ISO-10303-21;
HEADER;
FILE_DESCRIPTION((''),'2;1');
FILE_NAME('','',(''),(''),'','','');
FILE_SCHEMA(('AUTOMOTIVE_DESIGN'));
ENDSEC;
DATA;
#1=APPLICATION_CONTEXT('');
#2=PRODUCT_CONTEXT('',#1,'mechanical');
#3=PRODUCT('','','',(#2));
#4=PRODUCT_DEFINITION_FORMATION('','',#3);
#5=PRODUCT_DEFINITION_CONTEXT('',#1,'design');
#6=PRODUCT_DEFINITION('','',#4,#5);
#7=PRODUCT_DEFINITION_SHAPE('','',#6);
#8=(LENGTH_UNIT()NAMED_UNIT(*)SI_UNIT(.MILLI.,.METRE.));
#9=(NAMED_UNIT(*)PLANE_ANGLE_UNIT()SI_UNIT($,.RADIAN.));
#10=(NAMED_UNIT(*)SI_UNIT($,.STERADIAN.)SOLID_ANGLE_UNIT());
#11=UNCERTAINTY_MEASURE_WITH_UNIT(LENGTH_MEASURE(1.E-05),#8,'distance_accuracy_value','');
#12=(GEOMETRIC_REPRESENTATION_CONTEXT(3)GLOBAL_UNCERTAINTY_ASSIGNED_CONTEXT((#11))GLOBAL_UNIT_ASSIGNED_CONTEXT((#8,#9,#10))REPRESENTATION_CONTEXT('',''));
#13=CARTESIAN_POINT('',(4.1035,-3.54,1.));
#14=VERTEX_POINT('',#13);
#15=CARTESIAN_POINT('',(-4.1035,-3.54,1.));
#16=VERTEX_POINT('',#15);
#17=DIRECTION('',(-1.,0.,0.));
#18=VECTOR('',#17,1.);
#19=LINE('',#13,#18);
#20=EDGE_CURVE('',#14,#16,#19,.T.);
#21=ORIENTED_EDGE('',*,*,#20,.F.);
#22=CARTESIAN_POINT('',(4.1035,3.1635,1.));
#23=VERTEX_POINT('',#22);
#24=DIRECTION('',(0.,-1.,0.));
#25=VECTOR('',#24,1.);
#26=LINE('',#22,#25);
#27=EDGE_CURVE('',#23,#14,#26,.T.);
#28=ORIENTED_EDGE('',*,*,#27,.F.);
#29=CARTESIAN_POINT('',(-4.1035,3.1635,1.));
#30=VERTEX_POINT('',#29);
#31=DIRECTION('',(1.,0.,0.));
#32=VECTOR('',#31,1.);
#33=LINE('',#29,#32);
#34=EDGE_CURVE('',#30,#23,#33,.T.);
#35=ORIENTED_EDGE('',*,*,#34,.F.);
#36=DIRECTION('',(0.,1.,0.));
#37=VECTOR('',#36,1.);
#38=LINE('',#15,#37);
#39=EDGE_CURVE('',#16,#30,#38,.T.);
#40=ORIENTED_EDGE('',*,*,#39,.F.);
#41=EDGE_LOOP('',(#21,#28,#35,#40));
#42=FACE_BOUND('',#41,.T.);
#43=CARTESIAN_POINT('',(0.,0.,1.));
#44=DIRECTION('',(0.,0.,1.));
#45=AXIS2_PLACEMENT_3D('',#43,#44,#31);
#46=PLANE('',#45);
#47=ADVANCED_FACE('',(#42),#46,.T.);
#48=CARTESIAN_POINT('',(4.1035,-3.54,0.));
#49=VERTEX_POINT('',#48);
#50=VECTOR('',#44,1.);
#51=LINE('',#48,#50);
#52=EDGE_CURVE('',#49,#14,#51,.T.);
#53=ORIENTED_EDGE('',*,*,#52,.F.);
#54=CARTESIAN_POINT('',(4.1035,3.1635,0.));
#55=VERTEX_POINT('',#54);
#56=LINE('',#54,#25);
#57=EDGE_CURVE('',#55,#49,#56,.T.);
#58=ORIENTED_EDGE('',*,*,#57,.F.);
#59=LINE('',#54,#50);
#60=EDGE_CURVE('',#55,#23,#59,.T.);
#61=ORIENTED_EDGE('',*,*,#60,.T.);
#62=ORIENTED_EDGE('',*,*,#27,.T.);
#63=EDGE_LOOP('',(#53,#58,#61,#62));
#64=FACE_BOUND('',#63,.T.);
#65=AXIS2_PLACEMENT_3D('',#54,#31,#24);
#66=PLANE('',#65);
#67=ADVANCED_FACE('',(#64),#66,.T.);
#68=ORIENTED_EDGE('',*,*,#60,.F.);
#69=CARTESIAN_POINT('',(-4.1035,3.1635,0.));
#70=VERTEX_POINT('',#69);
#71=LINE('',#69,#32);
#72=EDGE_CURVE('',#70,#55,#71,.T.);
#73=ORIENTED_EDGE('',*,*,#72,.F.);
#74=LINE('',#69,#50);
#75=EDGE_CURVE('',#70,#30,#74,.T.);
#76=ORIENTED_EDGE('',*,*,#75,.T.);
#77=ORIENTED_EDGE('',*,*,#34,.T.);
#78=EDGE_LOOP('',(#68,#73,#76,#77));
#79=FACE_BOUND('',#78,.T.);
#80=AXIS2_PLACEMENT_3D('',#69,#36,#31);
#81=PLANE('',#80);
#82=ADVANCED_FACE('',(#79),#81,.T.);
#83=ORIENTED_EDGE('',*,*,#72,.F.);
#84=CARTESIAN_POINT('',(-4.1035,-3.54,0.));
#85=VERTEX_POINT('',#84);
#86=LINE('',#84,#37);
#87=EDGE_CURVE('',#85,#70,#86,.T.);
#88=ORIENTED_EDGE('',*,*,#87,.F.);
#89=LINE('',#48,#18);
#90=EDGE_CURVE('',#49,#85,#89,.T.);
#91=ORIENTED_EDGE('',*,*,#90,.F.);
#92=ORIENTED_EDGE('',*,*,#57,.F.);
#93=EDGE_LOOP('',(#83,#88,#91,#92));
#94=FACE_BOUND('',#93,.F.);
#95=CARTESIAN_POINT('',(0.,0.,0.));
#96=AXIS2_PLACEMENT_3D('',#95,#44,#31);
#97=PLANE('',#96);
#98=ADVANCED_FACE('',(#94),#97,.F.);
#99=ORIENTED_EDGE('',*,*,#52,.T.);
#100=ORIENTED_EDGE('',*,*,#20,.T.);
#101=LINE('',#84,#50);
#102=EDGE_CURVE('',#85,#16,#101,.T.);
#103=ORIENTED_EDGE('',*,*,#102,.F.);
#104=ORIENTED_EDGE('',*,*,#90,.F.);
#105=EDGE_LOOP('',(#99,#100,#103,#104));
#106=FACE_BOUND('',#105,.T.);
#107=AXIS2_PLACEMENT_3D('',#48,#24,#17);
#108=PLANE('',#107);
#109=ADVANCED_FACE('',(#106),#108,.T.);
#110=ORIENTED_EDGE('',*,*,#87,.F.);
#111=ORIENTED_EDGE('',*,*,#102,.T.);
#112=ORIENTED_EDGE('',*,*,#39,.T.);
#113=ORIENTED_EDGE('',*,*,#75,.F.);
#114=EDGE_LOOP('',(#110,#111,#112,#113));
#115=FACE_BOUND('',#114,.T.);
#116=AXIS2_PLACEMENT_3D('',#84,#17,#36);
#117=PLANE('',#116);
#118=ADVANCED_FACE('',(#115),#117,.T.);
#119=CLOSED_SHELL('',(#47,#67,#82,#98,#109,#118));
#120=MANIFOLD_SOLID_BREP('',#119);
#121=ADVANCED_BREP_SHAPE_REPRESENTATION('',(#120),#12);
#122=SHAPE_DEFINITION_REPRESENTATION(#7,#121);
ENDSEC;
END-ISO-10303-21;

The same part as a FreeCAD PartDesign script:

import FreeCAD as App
import Part
import Sketcher
from FreeCAD import Vector
Q = App.Units.Quantity

doc = App.newDocument("Part")
body = doc.addObject("PartDesign::Body", "Body")

sketch1 = body.newObject("Sketcher::SketchObject", "Sketch")
sketch1.AttachmentSupport = (doc.getObject("XY_Plane"), [""])
sketch1.MapMode = "FlatFace"
sketch1.addGeometry(Part.LineSegment(Vector(4, 3, 0), Vector(-4, 3, 0)), False)
sketch1.addGeometry(Part.LineSegment(Vector(-4, 3, 0), Vector(-4, -4, 0)), False)
sketch1.addGeometry(Part.LineSegment(Vector(-4, -4, 0), Vector(4, -4, 0)), False)
sketch1.addGeometry(Part.LineSegment(Vector(4, -4, 0), Vector(4, 3, 0)), False)
sketch1.addConstraint(Sketcher.Constraint("Coincident", 0, 2, 1, 1))
sketch1.addConstraint(Sketcher.Constraint("Coincident", 1, 2, 2, 1))
sketch1.addConstraint(Sketcher.Constraint("Coincident", 2, 2, 3, 1))
sketch1.addConstraint(Sketcher.Constraint("Coincident", 3, 2, 0, 1))
sketch1.addConstraint(Sketcher.Constraint("Horizontal", 0))
sketch1.addConstraint(Sketcher.Constraint("Vertical", 1))
sketch1.addConstraint(Sketcher.Constraint("Horizontal", 2))
sketch1.addConstraint(Sketcher.Constraint("Vertical", 3))
sketch1.addConstraint(Sketcher.Constraint("DistanceX", 0, 2, 0, 1, Q("8.207 mm")))
sketch1.addConstraint(Sketcher.Constraint("DistanceY", 1, 2, -1, 1, Q("3.54 mm")))
sketch1.addConstraint(Sketcher.Constraint("DistanceY", 1, 2, 1, 1, Q("6.7035 mm")))
sketch1.addConstraint(Sketcher.Constraint("DistanceX", 0, 2, -1, 1, Q("4.1035 mm")))
pad1 = body.newObject("PartDesign::Pad", "Pad")
pad1.Profile = sketch1
pad1.Length = 1

doc.recompute()
